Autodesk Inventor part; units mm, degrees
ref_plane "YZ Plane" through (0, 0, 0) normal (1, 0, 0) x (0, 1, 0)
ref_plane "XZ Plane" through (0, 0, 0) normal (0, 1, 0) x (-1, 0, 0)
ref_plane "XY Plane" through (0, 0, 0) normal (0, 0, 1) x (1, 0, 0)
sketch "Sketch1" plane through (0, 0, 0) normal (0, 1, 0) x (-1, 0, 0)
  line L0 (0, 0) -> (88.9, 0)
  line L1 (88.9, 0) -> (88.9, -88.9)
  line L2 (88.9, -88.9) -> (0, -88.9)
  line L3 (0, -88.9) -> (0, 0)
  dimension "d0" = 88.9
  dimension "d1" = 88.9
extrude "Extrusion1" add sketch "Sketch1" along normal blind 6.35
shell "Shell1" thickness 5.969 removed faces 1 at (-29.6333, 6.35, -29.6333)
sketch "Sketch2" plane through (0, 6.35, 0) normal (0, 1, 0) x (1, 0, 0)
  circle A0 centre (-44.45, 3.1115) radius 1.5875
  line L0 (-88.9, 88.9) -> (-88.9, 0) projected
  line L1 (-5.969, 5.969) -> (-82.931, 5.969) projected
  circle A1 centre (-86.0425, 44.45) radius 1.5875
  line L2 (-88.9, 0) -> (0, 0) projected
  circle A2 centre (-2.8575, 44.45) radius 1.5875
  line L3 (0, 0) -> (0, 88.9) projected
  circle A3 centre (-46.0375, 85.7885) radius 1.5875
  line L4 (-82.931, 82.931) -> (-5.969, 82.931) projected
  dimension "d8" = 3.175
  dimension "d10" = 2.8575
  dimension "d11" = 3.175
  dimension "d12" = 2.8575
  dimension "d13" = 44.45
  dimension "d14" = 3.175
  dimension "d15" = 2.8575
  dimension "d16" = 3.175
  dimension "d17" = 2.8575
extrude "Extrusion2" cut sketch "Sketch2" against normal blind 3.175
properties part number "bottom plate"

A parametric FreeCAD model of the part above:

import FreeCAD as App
import Part
import Sketcher
from FreeCAD import Vector
Q = App.Units.Quantity


def faces_at(feature, points):
    """Names of the faces that lie closest to the given points."""
    faces = feature.Shape.Faces
    near = lambda p: min(range(len(faces)), key=lambda i: faces[i].distToShape(Part.Vertex(*p))[0])
    return sorted({f"Face{near(p) + 1}" for p in points})

doc = App.newDocument("Part")
body = doc.addObject("PartDesign::Body", "Body")

# Sketch on XZ plane
sketch1 = body.newObject("Sketcher::SketchObject", "Sketch")
sketch1.AttachmentSupport = (doc.getObject("XZ_Plane"), [""])
sketch1.MapMode = "FlatFace"
sketch1.addGeometry([
    Part.LineSegment(Vector(-88.9, 0, 0), Vector(0, 0, 0)),
    Part.LineSegment(Vector(0, 0, 0), Vector(0, -88.9, 0)),
    Part.LineSegment(Vector(0, -88.9, 0), Vector(-88.9, -88.9, 0)),
    Part.LineSegment(Vector(-88.9, -88.9, 0), Vector(-88.9, 0, 0)),
], False)
sketch1.addConstraint([
    Sketcher.Constraint("Coincident", 0, 2, 1, 1),
    Sketcher.Constraint("Coincident", 1, 2, 2, 1),
    Sketcher.Constraint("Coincident", 2, 2, 3, 1),
    Sketcher.Constraint("Coincident", 3, 2, 0, 1),
    Sketcher.Constraint("Horizontal", 0),
    Sketcher.Constraint("Vertical", 1),
    Sketcher.Constraint("Horizontal", 2),
    Sketcher.Constraint("Vertical", 3),
    Sketcher.Constraint("Coincident", 0, 2, -1, 1),
    Sketcher.Constraint("Equal", 2, 1),
    Sketcher.Constraint("DistanceX", 0, 1, 0, 2, Q("3.5 in")),
])
pad1 = body.newObject("PartDesign::Pad", "Pad")
pad1.Profile = sketch1
pad1.Length = Q("0.25 in")
pad1.Reversed = True
doc.recompute()

thickness = body.newObject("PartDesign::Thickness", "Thickness")
thickness.Base = (pad1, faces_at(pad1, [(-29.633, 6.35, -29.633)]))
thickness.Value = Q("0.235 in")
thickness.Reversed = True
thickness.Join = "Intersection"

# Sketch on XZ plane
sketch2 = body.newObject("Sketcher::SketchObject", "Sketch001")
sketch2.AttachmentSupport = (doc.getObject("XZ_Plane"), [""])
sketch2.MapMode = "FlatFace"
sketch2.AttachmentOffset = App.Placement(Vector(0, 0, -0.25 * 25.4), App.Rotation())
sketch2.addGeometry([
    Part.Circle(Vector(-44.45, -3.1115, 0), Vector(0, 0, 1), 1.5875),
    Part.Circle(Vector(-86.0425, -44.45, 0), Vector(0, 0, 1), 1.5875),
    Part.Circle(Vector(-2.8575, -44.45, 0), Vector(0, 0, 1), 1.5875),
    Part.Circle(Vector(-46.0375, -85.7885, 0), Vector(0, 0, 1), 1.5875),
], False)
sketch2.addConstraint([
    Sketcher.Constraint("Equal", 0, 1),
    Sketcher.Constraint("Equal", 1, 2),
    Sketcher.Constraint("Equal", 2, 3),
    Sketcher.Constraint("Horizontal", 1, 3, 2, 3),
    Sketcher.Constraint("Diameter", 0, Q("0.125 in")),
    Sketcher.Constraint("DistanceX", 0, 3, -1, 1, Q("1.75 in")),
    Sketcher.Constraint("DistanceY", 1, 3, -1, 1, Q("1.75 in")),
    Sketcher.Constraint("DistanceX", 2, 3, -1, 1, Q("0.1125 in")),
    Sketcher.Constraint("DistanceX", 3, 3, 2, 3, Q("1.7 in")),
    Sketcher.Constraint("DistanceX", 1, 3, 2, 3, Q("3.275 in")),
    Sketcher.Constraint("DistanceY", 3, 3, 0, 3, Q("3.255 in")),
    Sketcher.Constraint("DistanceY", 0, 3, -1, 1, Q("0.1225 in")),
])
pocket1 = body.newObject("PartDesign::Pocket", "Pocket")
pocket1.Profile = sketch2
pocket1.Length = Q("0.125 in")
pocket1.Reversed = True

doc.recompute()
